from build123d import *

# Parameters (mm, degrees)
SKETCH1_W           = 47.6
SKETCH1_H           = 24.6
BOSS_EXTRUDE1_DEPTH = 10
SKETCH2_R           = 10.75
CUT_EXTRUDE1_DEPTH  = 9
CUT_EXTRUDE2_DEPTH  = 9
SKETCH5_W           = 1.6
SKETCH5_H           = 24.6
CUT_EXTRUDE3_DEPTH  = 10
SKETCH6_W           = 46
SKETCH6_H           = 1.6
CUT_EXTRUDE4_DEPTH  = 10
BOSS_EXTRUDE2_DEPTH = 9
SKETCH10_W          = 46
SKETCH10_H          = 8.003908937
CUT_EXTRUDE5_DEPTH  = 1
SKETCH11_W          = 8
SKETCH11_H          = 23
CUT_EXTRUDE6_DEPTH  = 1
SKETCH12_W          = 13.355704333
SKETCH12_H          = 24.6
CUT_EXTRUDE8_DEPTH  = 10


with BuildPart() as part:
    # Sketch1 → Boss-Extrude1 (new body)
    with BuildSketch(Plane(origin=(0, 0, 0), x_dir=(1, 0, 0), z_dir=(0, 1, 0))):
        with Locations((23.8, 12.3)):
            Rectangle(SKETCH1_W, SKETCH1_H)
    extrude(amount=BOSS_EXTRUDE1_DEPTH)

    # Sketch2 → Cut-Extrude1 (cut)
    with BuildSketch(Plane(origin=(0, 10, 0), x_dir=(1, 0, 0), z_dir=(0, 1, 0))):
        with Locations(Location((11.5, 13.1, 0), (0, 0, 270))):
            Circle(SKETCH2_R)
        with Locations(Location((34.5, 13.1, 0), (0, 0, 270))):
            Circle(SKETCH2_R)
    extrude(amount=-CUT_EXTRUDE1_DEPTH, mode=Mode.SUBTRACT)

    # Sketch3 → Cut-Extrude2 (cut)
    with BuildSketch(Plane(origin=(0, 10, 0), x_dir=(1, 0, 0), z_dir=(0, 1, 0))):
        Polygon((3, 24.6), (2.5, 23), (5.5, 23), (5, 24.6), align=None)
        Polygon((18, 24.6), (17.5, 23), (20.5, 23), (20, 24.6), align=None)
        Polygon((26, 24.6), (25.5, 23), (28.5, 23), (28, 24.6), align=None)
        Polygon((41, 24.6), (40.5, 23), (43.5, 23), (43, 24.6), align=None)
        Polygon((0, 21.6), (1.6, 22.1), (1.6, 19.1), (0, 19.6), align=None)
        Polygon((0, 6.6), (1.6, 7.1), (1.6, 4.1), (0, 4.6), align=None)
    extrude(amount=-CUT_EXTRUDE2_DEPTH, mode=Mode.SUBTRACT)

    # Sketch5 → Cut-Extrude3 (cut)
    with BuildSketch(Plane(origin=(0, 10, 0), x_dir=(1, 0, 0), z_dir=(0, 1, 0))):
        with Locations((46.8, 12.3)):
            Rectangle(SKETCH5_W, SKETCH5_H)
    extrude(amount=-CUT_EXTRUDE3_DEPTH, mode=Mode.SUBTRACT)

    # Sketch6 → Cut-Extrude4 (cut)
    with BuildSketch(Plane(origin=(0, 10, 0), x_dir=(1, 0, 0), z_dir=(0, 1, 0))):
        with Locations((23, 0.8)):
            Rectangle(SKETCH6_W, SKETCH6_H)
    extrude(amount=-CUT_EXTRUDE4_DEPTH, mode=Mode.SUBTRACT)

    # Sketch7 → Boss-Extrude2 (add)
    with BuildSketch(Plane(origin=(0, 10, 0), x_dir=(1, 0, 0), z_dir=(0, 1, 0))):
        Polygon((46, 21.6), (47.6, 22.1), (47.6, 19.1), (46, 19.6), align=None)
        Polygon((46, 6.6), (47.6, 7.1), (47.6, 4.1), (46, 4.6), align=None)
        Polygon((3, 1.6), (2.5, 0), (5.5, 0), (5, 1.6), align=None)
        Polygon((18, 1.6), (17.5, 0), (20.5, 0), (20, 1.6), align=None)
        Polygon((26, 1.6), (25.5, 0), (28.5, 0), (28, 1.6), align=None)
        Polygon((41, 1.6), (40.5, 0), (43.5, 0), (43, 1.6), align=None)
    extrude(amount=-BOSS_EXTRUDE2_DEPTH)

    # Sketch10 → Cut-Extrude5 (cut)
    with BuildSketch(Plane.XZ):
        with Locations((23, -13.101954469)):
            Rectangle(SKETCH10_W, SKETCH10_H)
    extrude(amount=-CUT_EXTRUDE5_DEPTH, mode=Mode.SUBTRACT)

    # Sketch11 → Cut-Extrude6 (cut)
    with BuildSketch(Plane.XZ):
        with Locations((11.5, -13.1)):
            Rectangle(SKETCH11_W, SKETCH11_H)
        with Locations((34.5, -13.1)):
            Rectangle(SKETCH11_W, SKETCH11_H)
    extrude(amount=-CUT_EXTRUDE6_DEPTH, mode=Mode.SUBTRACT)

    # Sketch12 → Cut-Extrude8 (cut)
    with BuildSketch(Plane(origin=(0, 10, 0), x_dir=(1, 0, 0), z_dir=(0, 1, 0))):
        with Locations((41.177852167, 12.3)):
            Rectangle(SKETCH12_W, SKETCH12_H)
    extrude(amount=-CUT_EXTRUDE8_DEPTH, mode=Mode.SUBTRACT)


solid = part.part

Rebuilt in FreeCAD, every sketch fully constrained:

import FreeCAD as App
import Part
import Sketcher

V = App.Vector


def add_polygon(sketch, points):
    """Adds a closed chain of lines whose ends are joined by coincident constraints."""
    first, n = sketch.GeometryCount, len(points)
    for a, b in zip(points, points[1:] + points[:1]):
        sketch.addGeometry(Part.LineSegment(App.Vector(*a, 0), App.Vector(*b, 0)), False)
    for i in range(n):
        sketch.addConstraint(Sketcher.Constraint("Coincident", first + i, 2, first + (i + 1) % n, 1))

doc = App.newDocument("Part")
body = doc.addObject("PartDesign::Body", "Body")

# Sketch on XZ plane
sketch1 = body.newObject("Sketcher::SketchObject", "Sketch")
sketch1.AttachmentSupport = (doc.getObject("XZ_Plane"), [""])
sketch1.MapMode = "FlatFace"
add_polygon(sketch1, [(0, -24.6), (0, 0), (47.6, 0), (47.6, -24.6)])  # lines 0-3
sketch1.addConstraint(Sketcher.Constraint("Vertical", 0))
sketch1.addConstraint(Sketcher.Constraint("Horizontal", 1))
sketch1.addConstraint(Sketcher.Constraint("Vertical", 2))
sketch1.addConstraint(Sketcher.Constraint("Horizontal", 3))
sketch1.addConstraint(Sketcher.Constraint("Coincident", 0, 2, -1, 1))
sketch1.addConstraint(Sketcher.Constraint("DistanceX", 1, 1, 1, 2, 47.6))
sketch1.addConstraint(Sketcher.Constraint("DistanceY", 0, 1, 0, 2, 24.6))
pad1 = body.newObject("PartDesign::Pad", "Pad")
pad1.Profile = sketch1
pad1.Length = 10
pad1.Reversed = True

# Sketch on XZ plane
sketch2 = body.newObject("Sketcher::SketchObject", "Sketch001")
sketch2.AttachmentSupport = (doc.getObject("XZ_Plane"), [""])
sketch2.MapMode = "FlatFace"
sketch2.AttachmentOffset = App.Placement(V(0, 0, -10), App.Rotation())
sketch2.addGeometry(Part.Circle(V(11.5, -13.1, 0), V(0, 0, 1), 10.75), False)
sketch2.addGeometry(Part.Circle(V(34.5, -13.1, 0), V(0, 0, 1), 10.75), False)
sketch2.addConstraint(Sketcher.Constraint("Equal", 0, 1))
sketch2.addConstraint(Sketcher.Constraint("Horizontal", 0, 3, 1, 3))
sketch2.addConstraint(Sketcher.Constraint("Diameter", 0, 21.5))
sketch2.addConstraint(Sketcher.Constraint("DistanceX", 0, 3, 1, 3, 23.0))
sketch2.addConstraint(Sketcher.Constraint("DistanceX", -1, 1, 0, 3, 11.5))
sketch2.addConstraint(Sketcher.Constraint("DistanceY", 0, 3, -1, 1, 13.1))
pocket1 = body.newObject("PartDesign::Pocket", "Pocket")
pocket1.Profile = sketch2
pocket1.Length = 9
pocket1.Reversed = True

# Sketch on XZ plane
sketch3 = body.newObject("Sketcher::SketchObject", "Sketch002")
sketch3.AttachmentSupport = (doc.getObject("XZ_Plane"), [""])
sketch3.MapMode = "FlatFace"
sketch3.AttachmentOffset = App.Placement(V(0, 0, -10), App.Rotation())
add_polygon(sketch3, [(3, -24.6), (2.5, -23), (5.5, -23), (5, -24.6)])  # lines 0-3
add_polygon(sketch3, [(18, -24.6), (17.5, -23), (20.5, -23), (20, -24.6)])  # lines 4-7
add_polygon(sketch3, [(26, -24.6), (25.5, -23), (28.5, -23), (28, -24.6)])  # lines 8-11
add_polygon(sketch3, [(41, -24.6), (40.5, -23), (43.5, -23), (43, -24.6)])  # lines 12-15
add_polygon(sketch3, [(1.6, -22.1), (0, -21.6), (0, -19.6), (1.6, -19.1)])  # lines 16-19
add_polygon(sketch3, [(1.6, -7.1), (0, -6.6), (0, -4.6), (1.6, -4.1)])  # lines 20-23
sketch3.addConstraint(Sketcher.Constraint("Horizontal", 1))
sketch3.addConstraint(Sketcher.Constraint("Horizontal", 3))
sketch3.addConstraint(Sketcher.Constraint("Horizontal", 5))
sketch3.addConstraint(Sketcher.Constraint("Horizontal", 7))
sketch3.addConstraint(Sketcher.Constraint("Horizontal", 9))
sketch3.addConstraint(Sketcher.Constraint("Horizontal", 11))
sketch3.addConstraint(Sketcher.Constraint("Horizontal", 13))
sketch3.addConstraint(Sketcher.Constraint("Horizontal", 15))
sketch3.addConstraint(Sketcher.Constraint("Vertical", 17))
sketch3.addConstraint(Sketcher.Constraint("Vertical", 19))
sketch3.addConstraint(Sketcher.Constraint("Vertical", 21))
sketch3.addConstraint(Sketcher.Constraint("Vertical", 23))
sketch3.addConstraint(Sketcher.Constraint("PointOnObject", 16, 2, -2))
sketch3.addConstraint(Sketcher.Constraint("PointOnObject", 20, 2, -2))
sketch3.addConstraint(Sketcher.Constraint("Parallel", 0, 4))
sketch3.addConstraint(Sketcher.Constraint("Parallel", 2, 6))
sketch3.addConstraint(Sketcher.Constraint("Parallel", 4, 8))
sketch3.addConstraint(Sketcher.Constraint("Parallel", 6, 10))
sketch3.addConstraint(Sketcher.Constraint("Parallel", 8, 12))
sketch3.addConstraint(Sketcher.Constraint("Parallel", 10, 14))
sketch3.addConstraint(Sketcher.Constraint("Perpendicular", 14, 16))
sketch3.addConstraint(Sketcher.Constraint("Perpendicular", 12, 18))
sketch3.addConstraint(Sketcher.Constraint("Parallel", 16, 20))
sketch3.addConstraint(Sketcher.Constraint("Parallel", 18, 22))
sketch3.addConstraint(Sketcher.Constraint("Horizontal", 1, 2, 4, 2))
sketch3.addConstraint(Sketcher.Constraint("Horizontal", 3, 2, 6, 2))
sketch3.addConstraint(Sketcher.Constraint("Horizontal", 5, 2, 8, 2))
sketch3.addConstraint(Sketcher.Constraint("Horizontal", 7, 2, 10, 2))
sketch3.addConstraint(Sketcher.Constraint("Horizontal", 9, 2, 12, 2))
sketch3.addConstraint(Sketcher.Constraint("Horizontal", 11, 2, 14, 2))
sketch3.addConstraint(Sketcher.Constraint("Vertical", 19, 2, 22, 2))
sketch3.addConstraint(Sketcher.Constraint("Equal", 1, 5))
sketch3.addConstraint(Sketcher.Constraint("Equal", 5, 9))
sketch3.addConstraint(Sketcher.Constraint("Equal", 9, 13))
sketch3.addConstraint(Sketcher.Constraint("Equal", 15, 17))
sketch3.addConstraint(Sketcher.Constraint("Equal", 13, 19))
sketch3.addConstraint(Sketcher.Constraint("Equal", 17, 21))
sketch3.addConstraint(Sketcher.Constraint("Equal", 0, 2))
sketch3.addConstraint(Sketcher.Constraint("DistanceX", 1, 1, 1, 2, 3.0))
sketch3.addConstraint(Sketcher.Constraint("DistanceX", 3, 2, 3, 1, 2.0))
sketch3.addConstraint(Sketcher.Constraint("DistanceY", 0, 2, -1, 1, 23.0))
sketch3.addConstraint(Sketcher.Constraint("DistanceX", -1, 1, 2, 2, 5.0))
sketch3.addConstraint(Sketcher.Constraint("DistanceX", -1, 1, 6, 2, 20.0))
sketch3.addConstraint(Sketcher.Constraint("DistanceX", -1, 1, 10, 2, 28.0))
sketch3.addConstraint(Sketcher.Constraint("DistanceX", -1, 1, 14, 2, 43.0))
sketch3.addConstraint(Sketcher.Constraint("DistanceY", 3, 2, 16, 2, 3.0))
sketch3.addConstraint(Sketcher.Constraint("DistanceY", 17, 2, 20, 2, 13.0))
sketch3.addConstraint(Sketcher.Constraint("DistanceY", 2, 2, -1, 1, 24.6))
pocket2 = body.newObject("PartDesign::Pocket", "Pocket001")
pocket2.Profile = sketch3
pocket2.Length = 9
pocket2.Reversed = True

# Sketch on XZ plane
sketch4 = body.newObject("Sketcher::SketchObject", "Sketch003")
sketch4.AttachmentSupport = (doc.getObject("XZ_Plane"), [""])
sketch4.MapMode = "FlatFace"
sketch4.AttachmentOffset = App.Placement(V(0, 0, -10), App.Rotation())
add_polygon(sketch4, [(46, -24.6), (46, 0), (47.6, 0), (47.6, -24.6)])  # lines 0-3
sketch4.addConstraint(Sketcher.Constraint("Vertical", 0))
sketch4.addConstraint(Sketcher.Constraint("Horizontal", 1))
sketch4.addConstraint(Sketcher.Constraint("Vertical", 2))
sketch4.addConstraint(Sketcher.Constraint("Horizontal", 3))
sketch4.addConstraint(Sketcher.Constraint("PointOnObject", 0, 2, -1))
sketch4.addConstraint(Sketcher.Constraint("DistanceX", 1, 1, 1, 2, 1.6))
sketch4.addConstraint(Sketcher.Constraint("DistanceY", 0, 1, 0, 2, 24.6))
sketch4.addConstraint(Sketcher.Constraint("DistanceX", -1, 1, 0, 2, 46.0))
pocket3 = body.newObject("PartDesign::Pocket", "Pocket002")
pocket3.Profile = sketch4
pocket3.Length = 10
pocket3.Reversed = True

# Sketch on XZ plane
sketch5 = body.newObject("Sketcher::SketchObject", "Sketch004")
sketch5.AttachmentSupport = (doc.getObject("XZ_Plane"), [""])
sketch5.MapMode = "FlatFace"
sketch5.AttachmentOffset = App.Placement(V(0, 0, -10), App.Rotation())
add_polygon(sketch5, [(0, -1.6), (0, 0), (46, 0), (46, -1.6)])  # lines 0-3
sketch5.addConstraint(Sketcher.Constraint("Vertical", 0))
sketch5.addConstraint(Sketcher.Constraint("Horizontal", 1))
sketch5.addConstraint(Sketcher.Constraint("Vertical", 2))
sketch5.addConstraint(Sketcher.Constraint("Horizontal", 3))
sketch5.addConstraint(Sketcher.Constraint("Coincident", 0, 2, -1, 1))
sketch5.addConstraint(Sketcher.Constraint("DistanceX", 1, 1, 1, 2, 46.0))
sketch5.addConstraint(Sketcher.Constraint("DistanceY", 0, 1, 0, 2, 1.6))
pocket4 = body.newObject("PartDesign::Pocket", "Pocket003")
pocket4.Profile = sketch5
pocket4.Length = 10
pocket4.Reversed = True

# Sketch on XZ plane
sketch6 = body.newObject("Sketcher::SketchObject", "Sketch005")
sketch6.AttachmentSupport = (doc.getObject("XZ_Plane"), [""])
sketch6.MapMode = "FlatFace"
sketch6.AttachmentOffset = App.Placement(V(0, 0, -10), App.Rotation())
add_polygon(sketch6, [(47.6, -22.1), (46, -21.6), (46, -19.6), (47.6, -19.1)])  # lines 0-3
add_polygon(sketch6, [(47.6, -7.1), (46, -6.6), (46, -4.6), (47.6, -4.1)])  # lines 4-7
add_polygon(sketch6, [(3, -1.6), (2.5, 0), (5.5, 0), (5, -1.6)])  # lines 8-11
add_polygon(sketch6, [(18, -1.6), (17.5, 0), (20.5, 0), (20, -1.6)])  # lines 12-15
add_polygon(sketch6, [(26, -1.6), (25.5, 0), (28.5, 0), (28, -1.6)])  # lines 16-19
add_polygon(sketch6, [(41, -1.6), (40.5, 0), (43.5, 0), (43, -1.6)])  # lines 20-23
sketch6.addConstraint(Sketcher.Constraint("Vertical", 1))
sketch6.addConstraint(Sketcher.Constraint("Vertical", 3))
sketch6.addConstraint(Sketcher.Constraint("Vertical", 5))
sketch6.addConstraint(Sketcher.Constraint("Vertical", 7))
sketch6.addConstraint(Sketcher.Constraint("Horizontal", 9))
sketch6.addConstraint(Sketcher.Constraint("Horizontal", 11))
sketch6.addConstraint(Sketcher.Constraint("Horizontal", 13))
sketch6.addConstraint(Sketcher.Constraint("Horizontal", 15))
sketch6.addConstraint(Sketcher.Constraint("Horizontal", 17))
sketch6.addConstraint(Sketcher.Constraint("Horizontal", 19))
sketch6.addConstraint(Sketcher.Constraint("Horizontal", 21))
sketch6.addConstraint(Sketcher.Constraint("Horizontal", 23))
sketch6.addConstraint(Sketcher.Constraint("PointOnObject", 8, 2, -1))
sketch6.addConstraint(Sketcher.Constraint("PointOnObject", 12, 2, -1))
sketch6.addConstraint(Sketcher.Constraint("PointOnObject", 16, 2, -1))
sketch6.addConstraint(Sketcher.Constraint("PointOnObject", 20, 2, -1))
sketch6.addConstraint(Sketcher.Constraint("Parallel", 0, 4))
sketch6.addConstraint(Sketcher.Constraint("Parallel", 2, 6))
sketch6.addConstraint(Sketcher.Constraint("Perpendicular", 6, 8))
sketch6.addConstraint(Sketcher.Constraint("Perpendicular", 4, 10))
sketch6.addConstraint(Sketcher.Constraint("Parallel", 8, 12))
sketch6.addConstraint(Sketcher.Constraint("Parallel", 10, 14))
sketch6.addConstraint(Sketcher.Constraint("Parallel", 12, 16))
sketch6.addConstraint(Sketcher.Constraint("Parallel", 14, 18))
sketch6.addConstraint(Sketcher.Constraint("Parallel", 16, 20))
sketch6.addConstraint(Sketcher.Constraint("Parallel", 18, 22))
sketch6.addConstraint(Sketcher.Constraint("Horizontal", 11, 2, 14, 2))
sketch6.addConstraint(Sketcher.Constraint("Horizontal", 15, 2, 18, 2))
sketch6.addConstraint(Sketcher.Constraint("Horizontal", 19, 2, 22, 2))
sketch6.addConstraint(Sketcher.Constraint("Vertical", 1, 2, 4, 2))
sketch6.addConstraint(Sketcher.Constraint("Vertical", 3, 2, 6, 2))
sketch6.addConstraint(Sketcher.Constraint("Equal", 9, 13))
sketch6.addConstraint(Sketcher.Constraint("Equal", 13, 17))
sketch6.addConstraint(Sketcher.Constraint("Equal", 17, 21))
sketch6.addConstraint(Sketcher.Constraint("Equal", 23, 1))
sketch6.addConstraint(Sketcher.Constraint("Equal", 21, 3))
sketch6.addConstraint(Sketcher.Constraint("Equal", 1, 5))
sketch6.addConstraint(Sketcher.Constraint("Equal", 0, 2))
sketch6.addConstraint(Sketcher.Constraint("DistanceX", 9, 1, 9, 2, 3.0))
sketch6.addConstraint(Sketcher.Constraint("DistanceX", 11, 2, 11, 1, 2.0))
sketch6.addConstraint(Sketcher.Constraint("DistanceX", -1, 1, 0, 2, 46.0))
sketch6.addConstraint(Sketcher.Constraint("DistanceX", -1, 1, 10, 2, 5.0))
sketch6.addConstraint(Sketcher.Constraint("DistanceX", -1, 1, 14, 2, 20.0))
sketch6.addConstraint(Sketcher.Constraint("DistanceX", -1, 1, 18, 2, 28.0))
sketch6.addConstraint(Sketcher.Constraint("DistanceX", -1, 1, 22, 2, 43.0))
sketch6.addConstraint(Sketcher.Constraint("DistanceY", 1, 2, 4, 2, 13.0))
sketch6.addConstraint(Sketcher.Constraint("DistanceY", 5, 2, 10, 2, 3.0))
sketch6.addConstraint(Sketcher.Constraint("DistanceY", 0, 2, -1, 1, 21.6))
pad2 = body.newObject("PartDesign::Pad", "Pad001")
pad2.Profile = sketch6
pad2.Length = 9

# Sketch on XZ plane
sketch7 = body.newObject("Sketcher::SketchObject", "Sketch006")
sketch7.AttachmentSupport = (doc.getObject("XZ_Plane"), [""])
sketch7.MapMode = "FlatFace"
add_polygon(sketch7, [(0, -9.1), (0, -17.103909), (46, -17.103909), (46, -9.1)])  # lines 0-3
sketch7.addConstraint(Sketcher.Constraint("Vertical", 0))
sketch7.addConstraint(Sketcher.Constraint("Horizontal", 1))
sketch7.addConstraint(Sketcher.Constraint("Vertical", 2))
sketch7.addConstraint(Sketcher.Constraint("Horizontal", 3))
sketch7.addConstraint(Sketcher.Constraint("PointOnObject", 0, 2, -2))
sketch7.addConstraint(Sketcher.Constraint("DistanceX", 1, 1, 1, 2, 46.0))
sketch7.addConstraint(Sketcher.Constraint("DistanceY", 2, 2, -1, 1, 9.1))
sketch7.addConstraint(Sketcher.Constraint("DistanceY", 0, 2, 0, 1, 8.003909))
pocket5 = body.newObject("PartDesign::Pocket", "Pocket004")
pocket5.Profile = sketch7
pocket5.Length = 1

# Sketch on XZ plane
sketch8 = body.newObject("Sketcher::SketchObject", "Sketch007")
sketch8.AttachmentSupport = (doc.getObject("XZ_Plane"), [""])
sketch8.MapMode = "FlatFace"
add_polygon(sketch8, [(7.5, -1.6), (7.5, -24.6), (15.5, -24.6), (15.5, -1.6)])  # lines 0-3
add_polygon(sketch8, [(30.5, -1.6), (30.5, -24.6), (38.5, -24.6), (38.5, -1.6)])  # lines 4-7
sketch8.addConstraint(Sketcher.Constraint("Vertical", 0))
sketch8.addConstraint(Sketcher.Constraint("Horizontal", 1))
sketch8.addConstraint(Sketcher.Constraint("Vertical", 2))
sketch8.addConstraint(Sketcher.Constraint("Horizontal", 3))
sketch8.addConstraint(Sketcher.Constraint("Vertical", 4))
sketch8.addConstraint(Sketcher.Constraint("Horizontal", 5))
sketch8.addConstraint(Sketcher.Constraint("Vertical", 6))
sketch8.addConstraint(Sketcher.Constraint("Horizontal", 7))
sketch8.addConstraint(Sketcher.Constraint("Horizontal", 1, 2, 4, 2))
sketch8.addConstraint(Sketcher.Constraint("Horizontal", 3, 2, 6, 2))
sketch8.addConstraint(Sketcher.Constraint("Equal", 3, 5))
sketch8.addConstraint(Sketcher.Constraint("DistanceX", 1, 1, 1, 2, 8.0))
sketch8.addConstraint(Sketcher.Constraint("DistanceY", 0, 2, 0, 1, 23.0))
sketch8.addConstraint(Sketcher.Constraint("DistanceX", 1, 2, 4, 2, 15.0))
sketch8.addConstraint(Sketcher.Constraint("DistanceX", -1, 1, 0, 2, 7.5))
sketch8.addConstraint(Sketcher.Constraint("DistanceY", 0, 2, -1, 1, 24.6))
pocket6 = body.newObject("PartDesign::Pocket", "Pocket005")
pocket6.Profile = sketch8
pocket6.Length = 1

# Sketch on XZ plane
sketch9 = body.newObject("Sketcher::SketchObject", "Sketch008")
sketch9.AttachmentSupport = (doc.getObject("XZ_Plane"), [""])
sketch9.MapMode = "FlatFace"
sketch9.AttachmentOffset = App.Placement(V(0, 0, -10), App.Rotation())
add_polygon(sketch9, [(34.5, -24.6), (34.5, 0), (47.855704, 0), (47.855704, -24.6)])  # lines 0-3
sketch9.addConstraint(Sketcher.Constraint("Vertical", 0))
sketch9.addConstraint(Sketcher.Constraint("Horizontal", 1))
sketch9.addConstraint(Sketcher.Constraint("Vertical", 2))
sketch9.addConstraint(Sketcher.Constraint("Horizontal", 3))
sketch9.addConstraint(Sketcher.Constraint("PointOnObject", 0, 2, -1))
sketch9.addConstraint(Sketcher.Constraint("DistanceY", 0, 1, 0, 2, 24.6))
sketch9.addConstraint(Sketcher.Constraint("DistanceX", -1, 1, 0, 2, 34.5))
sketch9.addConstraint(Sketcher.Constraint("DistanceX", 1, 1, 1, 2, 13.355704))
pocket7 = body.newObject("PartDesign::Pocket", "Pocket006")
pocket7.Profile = sketch9
pocket7.Length = 10
pocket7.Reversed = True

doc.recompute()
